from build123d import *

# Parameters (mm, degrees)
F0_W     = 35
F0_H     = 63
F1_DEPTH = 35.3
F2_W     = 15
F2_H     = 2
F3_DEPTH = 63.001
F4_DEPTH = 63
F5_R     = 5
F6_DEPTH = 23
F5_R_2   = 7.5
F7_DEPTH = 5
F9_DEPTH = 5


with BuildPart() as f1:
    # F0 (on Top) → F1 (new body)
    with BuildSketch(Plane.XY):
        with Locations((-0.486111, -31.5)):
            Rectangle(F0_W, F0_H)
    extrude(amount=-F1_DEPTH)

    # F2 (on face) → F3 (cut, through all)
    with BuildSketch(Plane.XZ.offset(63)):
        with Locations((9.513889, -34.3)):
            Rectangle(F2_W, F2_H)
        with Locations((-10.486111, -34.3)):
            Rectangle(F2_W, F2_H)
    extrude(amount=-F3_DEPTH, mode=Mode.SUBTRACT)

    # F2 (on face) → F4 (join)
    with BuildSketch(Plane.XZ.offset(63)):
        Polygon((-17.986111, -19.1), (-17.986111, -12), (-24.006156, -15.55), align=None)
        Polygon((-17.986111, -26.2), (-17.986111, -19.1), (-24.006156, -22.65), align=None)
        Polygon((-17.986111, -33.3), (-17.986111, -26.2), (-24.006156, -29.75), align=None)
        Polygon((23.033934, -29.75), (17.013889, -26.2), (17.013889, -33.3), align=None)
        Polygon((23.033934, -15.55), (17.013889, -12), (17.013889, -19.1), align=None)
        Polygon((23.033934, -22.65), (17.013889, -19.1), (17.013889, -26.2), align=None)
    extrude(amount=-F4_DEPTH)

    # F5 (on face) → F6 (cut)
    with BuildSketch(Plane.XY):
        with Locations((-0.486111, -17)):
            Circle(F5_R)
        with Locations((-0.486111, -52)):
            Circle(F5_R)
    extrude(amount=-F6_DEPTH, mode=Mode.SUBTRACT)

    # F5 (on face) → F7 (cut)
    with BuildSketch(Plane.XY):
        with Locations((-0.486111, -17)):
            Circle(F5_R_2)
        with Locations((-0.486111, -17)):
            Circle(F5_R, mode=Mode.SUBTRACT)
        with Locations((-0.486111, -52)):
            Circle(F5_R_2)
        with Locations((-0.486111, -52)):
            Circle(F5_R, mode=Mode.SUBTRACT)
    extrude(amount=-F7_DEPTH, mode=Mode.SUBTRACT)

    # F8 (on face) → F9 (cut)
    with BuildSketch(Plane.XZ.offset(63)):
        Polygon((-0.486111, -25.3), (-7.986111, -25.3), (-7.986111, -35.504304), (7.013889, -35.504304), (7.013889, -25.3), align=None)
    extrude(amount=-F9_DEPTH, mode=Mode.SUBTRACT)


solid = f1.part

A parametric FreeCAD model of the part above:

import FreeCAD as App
import Part
import Sketcher
from FreeCAD import Vector
Q = App.Units.Quantity


def add_polygon(sketch, points):
    """Adds a closed chain of lines whose ends are joined by coincident constraints."""
    first, n = sketch.GeometryCount, len(points)
    for a, b in zip(points, points[1:] + points[:1]):
        sketch.addGeometry(Part.LineSegment(App.Vector(*a, 0), App.Vector(*b, 0)), False)
    for i in range(n):
        sketch.addConstraint(Sketcher.Constraint("Coincident", first + i, 2, first + (i + 1) % n, 1))

doc = App.newDocument("Part")
params = doc.addObject("Spreadsheet::Sheet", "Params")
for row, (alias, value) in enumerate([
    ("sketch1_width", "35 mm"),
    ("sketch1_height", "63 mm"),
    ("pad1_length", "35.3 mm"),
    ("sketch2_width", "15 mm"),
    ("sketch2_height", "2 mm"),
    ("sketch3_height", "7.1 mm"),
    ("pad2_length", "63 mm"),
    ("sketch4_diameter", "10 mm"),
    ("pocket2_length", "23 mm"),
    ("sketch5_diameter", "15 mm"),
    ("sketch5_diameter2", "10 mm"),
    ("pocket3_length", "5 mm"),
    ("sketch6_width", "15 mm"),
    ("pocket4_length", "5 mm"),
], start=1):
    params.set(f"A{row}", alias)
    params.set(f"B{row}", "=" + value)
    params.setAlias(f"B{row}", alias)

body = doc.addObject("PartDesign::Body", "Body")

sketch1 = body.newObject("Sketcher::SketchObject", "Sketch")
sketch1.AttachmentSupport = (doc.getObject("XY_Plane"), [""])
sketch1.MapMode = "FlatFace"
add_polygon(sketch1, [(-18, 0), (-18, -63), (17, -63), (17, 0)])
sketch1.addConstraint([
    Sketcher.Constraint("Vertical", 0),
    Sketcher.Constraint("Horizontal", 1),
    Sketcher.Constraint("Vertical", 2),
    Sketcher.Constraint("Horizontal", 3),
    Sketcher.Constraint("PointOnObject", 2, 2, -1),
    Sketcher.Constraint("DistanceX", 1, 1, 1, 2, Q("35 mm")),
    Sketcher.Constraint("DistanceY", 0, 2, 0, 1, Q("63 mm")),
    Sketcher.Constraint("DistanceX", 0, 2, -1, 1, Q("17.986111 mm")),
])
sketch1.setExpression("Constraints[9]", "Params.sketch1_width")
sketch1.setExpression("Constraints[10]", "Params.sketch1_height")
pad1 = body.newObject("PartDesign::Pad", "Pad")
pad1.Profile = sketch1
pad1.setExpression("Length", "Params.pad1_length")
pad1.Reversed = True

sketch2 = body.newObject("Sketcher::SketchObject", "Sketch001")
sketch2.AttachmentSupport = (doc.getObject("XZ_Plane"), [""])
sketch2.MapMode = "FlatFace"
sketch2.AttachmentOffset = App.Placement(Vector(0, 0, 63), App.Rotation())
add_polygon(sketch2, [(2, -33.3), (2, -35.3), (17, -35.3), (17, -33.3)])
add_polygon(sketch2, [(-18, -33.3), (-18, -35.3), (-3, -35.3), (-3, -33.3)])
sketch2.addConstraint([
    Sketcher.Constraint("Vertical", 0),
    Sketcher.Constraint("Horizontal", 1),
    Sketcher.Constraint("Vertical", 2),
    Sketcher.Constraint("Horizontal", 3),
    Sketcher.Constraint("Vertical", 4),
    Sketcher.Constraint("Horizontal", 5),
    Sketcher.Constraint("Vertical", 6),
    Sketcher.Constraint("Horizontal", 7),
    Sketcher.Constraint("Horizontal", 1, 2, 4, 2),
    Sketcher.Constraint("Horizontal", 3, 2, 6, 2),
    Sketcher.Constraint("Equal", 3, 5),
    Sketcher.Constraint("DistanceX", 1, 1, 1, 2, Q("15 mm")),
    Sketcher.Constraint("DistanceY", 0, 2, 0, 1, Q("2 mm")),
    Sketcher.Constraint("DistanceX", 4, 2, 0, 2, Q("20 mm")),
    Sketcher.Constraint("DistanceY", 0, 2, -1, 1, Q("35.3 mm")),
    Sketcher.Constraint("DistanceX", -1, 1, 0, 2, Q("2.013889 mm")),
])
sketch2.setExpression("Constraints[19]", "Params.sketch2_width")
sketch2.setExpression("Constraints[20]", "Params.sketch2_height")
pocket1 = body.newObject("PartDesign::Pocket", "Pocket")
pocket1.Profile = sketch2
pocket1.Type = "ThroughAll"

sketch3 = body.newObject("Sketcher::SketchObject", "Sketch002")
sketch3.AttachmentSupport = (doc.getObject("XZ_Plane"), [""])
sketch3.MapMode = "FlatFace"
sketch3.AttachmentOffset = App.Placement(Vector(0, 0, 63), App.Rotation())
add_polygon(sketch3, [(-18, -19), (-18, -12), (-24, -16)])
add_polygon(sketch3, [(-18, -26), (-18, -19), (-24, -23)])
add_polygon(sketch3, [(-18, -33), (-18, -26), (-24, -30)])
add_polygon(sketch3, [(23, -30), (17, -26), (17, -33)])
add_polygon(sketch3, [(23, -16), (17, -12), (17, -19)])
add_polygon(sketch3, [(23, -23), (17, -19), (17, -26)])
sketch3.addConstraint([
    Sketcher.Constraint("Vertical", 0),
    Sketcher.Constraint("Vertical", 3),
    Sketcher.Constraint("Vertical", 6),
    Sketcher.Constraint("Vertical", 10),
    Sketcher.Constraint("Vertical", 13),
    Sketcher.Constraint("Vertical", 16),
    Sketcher.Constraint("Coincident", 3, 2, 2, 2),
    Sketcher.Constraint("Coincident", 6, 2, 5, 2),
    Sketcher.Constraint("Coincident", 15, 2, 13, 2),
    Sketcher.Constraint("Coincident", 16, 2, 9, 2),
    Sketcher.Constraint("Parallel", 1, 4),
    Sketcher.Constraint("Parallel", 2, 5),
    Sketcher.Constraint("Parallel", 4, 7),
    Sketcher.Constraint("Parallel", 5, 8),
    Sketcher.Constraint("Parallel", 8, 9),
    Sketcher.Constraint("Parallel", 7, 11),
    Sketcher.Constraint("Parallel", 9, 12),
    Sketcher.Constraint("Parallel", 11, 14),
    Sketcher.Constraint("Parallel", 12, 15),
    Sketcher.Constraint("Parallel", 14, 17),
    Sketcher.Constraint("Horizontal", 6, 2, 9, 2),
    Sketcher.Constraint("Horizontal", 8, 2, 10, 2),
    Sketcher.Constraint("Horizontal", 7, 2, 11, 2),
    Sketcher.Constraint("Horizontal", 0, 2, 12, 2),
    Sketcher.Constraint("Horizontal", 3, 2, 13, 2),
    Sketcher.Constraint("Vertical", 1, 2, 4, 2),
    Sketcher.Constraint("Vertical", 4, 2, 7, 2),
    Sketcher.Constraint("DistanceY", 0, 1, 0, 2, Q("7.1 mm")),
    Sketcher.Constraint("DistanceY", 0, 2, -1, 1, Q("12 mm")),
    Sketcher.Constraint("DistanceX", 5, 2, 9, 2, Q("35 mm")),
    Sketcher.Constraint("Distance", 1, Q("6.988808 mm")),
    Sketcher.Constraint("DistanceX", 0, 2, -1, 1, Q("17.986111 mm")),
])
sketch3.setExpression("Constraints[45]", "Params.sketch3_height")
pad2 = body.newObject("PartDesign::Pad", "Pad001")
pad2.Profile = sketch3
pad2.setExpression("Length", "Params.pad2_length")
pad2.Reversed = True

sketch4 = body.newObject("Sketcher::SketchObject", "Sketch003")
sketch4.AttachmentSupport = (doc.getObject("XY_Plane"), [""])
sketch4.MapMode = "FlatFace"
sketch4.addGeometry([
    Part.Circle(Vector(0, -17, 0), Vector(0, 0, 1), 5),
    Part.Circle(Vector(0, -52, 0), Vector(0, 0, 1), 5),
], False)
sketch4.addConstraint([
    Sketcher.Constraint("Equal", 0, 1),
    Sketcher.Constraint("Vertical", 0, 3, 1, 3),
    Sketcher.Constraint("Diameter", 0, Q("10 mm")),
    Sketcher.Constraint("DistanceY", 0, 3, -1, 1, Q("17 mm")),
    Sketcher.Constraint("DistanceY", 1, 3, -1, 1, Q("52 mm")),
    Sketcher.Constraint("DistanceX", 0, 3, -1, 1, Q("0.486111 mm")),
])
sketch4.setExpression("Constraints[2]", "Params.sketch4_diameter")
pocket2 = body.newObject("PartDesign::Pocket", "Pocket001")
pocket2.Profile = sketch4
pocket2.setExpression("Length", "Params.pocket2_length")

sketch5 = body.newObject("Sketcher::SketchObject", "Sketch004")
sketch5.AttachmentSupport = (doc.getObject("XY_Plane"), [""])
sketch5.MapMode = "FlatFace"
sketch5.addGeometry([
    Part.Circle(Vector(0, -17, 0), Vector(0, 0, 1), 8),
    Part.Circle(Vector(0, -17, 0), Vector(0, 0, 1), 5),
    Part.Circle(Vector(0, -52, 0), Vector(0, 0, 1), 8),
    Part.Circle(Vector(0, -52, 0), Vector(0, 0, 1), 5),
], False)
sketch5.addConstraint([
    Sketcher.Constraint("Coincident", 1, 3, 0, 3),
    Sketcher.Constraint("Coincident", 3, 3, 2, 3),
    Sketcher.Constraint("Equal", 0, 2),
    Sketcher.Constraint("Equal", 1, 3),
    Sketcher.Constraint("Vertical", 1, 3, 2, 3),
    Sketcher.Constraint("Diameter", 0, Q("15 mm")),
    Sketcher.Constraint("Diameter", 1, Q("10 mm")),
    Sketcher.Constraint("DistanceY", 0, 3, -1, 1, Q("17 mm")),
    Sketcher.Constraint("DistanceY", 2, 3, -1, 1, Q("52 mm")),
    Sketcher.Constraint("DistanceX", 0, 3, -1, 1, Q("0.486111 mm")),
])
sketch5.setExpression("Constraints[5]", "Params.sketch5_diameter")
sketch5.setExpression("Constraints[6]", "Params.sketch5_diameter2")
pocket3 = body.newObject("PartDesign::Pocket", "Pocket002")
pocket3.Profile = sketch5
pocket3.setExpression("Length", "Params.pocket3_length")

sketch6 = body.newObject("Sketcher::SketchObject", "Sketch005")
sketch6.AttachmentSupport = (doc.getObject("XZ_Plane"), [""])
sketch6.MapMode = "FlatFace"
sketch6.AttachmentOffset = App.Placement(Vector(0, 0, 63), App.Rotation())
add_polygon(sketch6, [(-8, -25), (-8, -36), (7, -36), (7, -25)])
sketch6.addConstraint([
    Sketcher.Constraint("Vertical", 0),
    Sketcher.Constraint("Horizontal", 1),
    Sketcher.Constraint("Vertical", 2),
    Sketcher.Constraint("Horizontal", 3),
    Sketcher.Constraint("DistanceX", 1, 1, 1, 2, Q("15 mm")),
    Sketcher.Constraint("DistanceY", 2, 2, -1, 1, Q("25.3 mm")),
    Sketcher.Constraint("DistanceY", 0, 2, 0, 1, Q("10.204304 mm")),
    Sketcher.Constraint("DistanceX", 0, 2, -1, 1, Q("7.986111 mm")),
])
sketch6.setExpression("Constraints[8]", "Params.sketch6_width")
pocket4 = body.newObject("PartDesign::Pocket", "Pocket003")
pocket4.Profile = sketch6
pocket4.setExpression("Length", "Params.pocket4_length")

doc.recompute()
